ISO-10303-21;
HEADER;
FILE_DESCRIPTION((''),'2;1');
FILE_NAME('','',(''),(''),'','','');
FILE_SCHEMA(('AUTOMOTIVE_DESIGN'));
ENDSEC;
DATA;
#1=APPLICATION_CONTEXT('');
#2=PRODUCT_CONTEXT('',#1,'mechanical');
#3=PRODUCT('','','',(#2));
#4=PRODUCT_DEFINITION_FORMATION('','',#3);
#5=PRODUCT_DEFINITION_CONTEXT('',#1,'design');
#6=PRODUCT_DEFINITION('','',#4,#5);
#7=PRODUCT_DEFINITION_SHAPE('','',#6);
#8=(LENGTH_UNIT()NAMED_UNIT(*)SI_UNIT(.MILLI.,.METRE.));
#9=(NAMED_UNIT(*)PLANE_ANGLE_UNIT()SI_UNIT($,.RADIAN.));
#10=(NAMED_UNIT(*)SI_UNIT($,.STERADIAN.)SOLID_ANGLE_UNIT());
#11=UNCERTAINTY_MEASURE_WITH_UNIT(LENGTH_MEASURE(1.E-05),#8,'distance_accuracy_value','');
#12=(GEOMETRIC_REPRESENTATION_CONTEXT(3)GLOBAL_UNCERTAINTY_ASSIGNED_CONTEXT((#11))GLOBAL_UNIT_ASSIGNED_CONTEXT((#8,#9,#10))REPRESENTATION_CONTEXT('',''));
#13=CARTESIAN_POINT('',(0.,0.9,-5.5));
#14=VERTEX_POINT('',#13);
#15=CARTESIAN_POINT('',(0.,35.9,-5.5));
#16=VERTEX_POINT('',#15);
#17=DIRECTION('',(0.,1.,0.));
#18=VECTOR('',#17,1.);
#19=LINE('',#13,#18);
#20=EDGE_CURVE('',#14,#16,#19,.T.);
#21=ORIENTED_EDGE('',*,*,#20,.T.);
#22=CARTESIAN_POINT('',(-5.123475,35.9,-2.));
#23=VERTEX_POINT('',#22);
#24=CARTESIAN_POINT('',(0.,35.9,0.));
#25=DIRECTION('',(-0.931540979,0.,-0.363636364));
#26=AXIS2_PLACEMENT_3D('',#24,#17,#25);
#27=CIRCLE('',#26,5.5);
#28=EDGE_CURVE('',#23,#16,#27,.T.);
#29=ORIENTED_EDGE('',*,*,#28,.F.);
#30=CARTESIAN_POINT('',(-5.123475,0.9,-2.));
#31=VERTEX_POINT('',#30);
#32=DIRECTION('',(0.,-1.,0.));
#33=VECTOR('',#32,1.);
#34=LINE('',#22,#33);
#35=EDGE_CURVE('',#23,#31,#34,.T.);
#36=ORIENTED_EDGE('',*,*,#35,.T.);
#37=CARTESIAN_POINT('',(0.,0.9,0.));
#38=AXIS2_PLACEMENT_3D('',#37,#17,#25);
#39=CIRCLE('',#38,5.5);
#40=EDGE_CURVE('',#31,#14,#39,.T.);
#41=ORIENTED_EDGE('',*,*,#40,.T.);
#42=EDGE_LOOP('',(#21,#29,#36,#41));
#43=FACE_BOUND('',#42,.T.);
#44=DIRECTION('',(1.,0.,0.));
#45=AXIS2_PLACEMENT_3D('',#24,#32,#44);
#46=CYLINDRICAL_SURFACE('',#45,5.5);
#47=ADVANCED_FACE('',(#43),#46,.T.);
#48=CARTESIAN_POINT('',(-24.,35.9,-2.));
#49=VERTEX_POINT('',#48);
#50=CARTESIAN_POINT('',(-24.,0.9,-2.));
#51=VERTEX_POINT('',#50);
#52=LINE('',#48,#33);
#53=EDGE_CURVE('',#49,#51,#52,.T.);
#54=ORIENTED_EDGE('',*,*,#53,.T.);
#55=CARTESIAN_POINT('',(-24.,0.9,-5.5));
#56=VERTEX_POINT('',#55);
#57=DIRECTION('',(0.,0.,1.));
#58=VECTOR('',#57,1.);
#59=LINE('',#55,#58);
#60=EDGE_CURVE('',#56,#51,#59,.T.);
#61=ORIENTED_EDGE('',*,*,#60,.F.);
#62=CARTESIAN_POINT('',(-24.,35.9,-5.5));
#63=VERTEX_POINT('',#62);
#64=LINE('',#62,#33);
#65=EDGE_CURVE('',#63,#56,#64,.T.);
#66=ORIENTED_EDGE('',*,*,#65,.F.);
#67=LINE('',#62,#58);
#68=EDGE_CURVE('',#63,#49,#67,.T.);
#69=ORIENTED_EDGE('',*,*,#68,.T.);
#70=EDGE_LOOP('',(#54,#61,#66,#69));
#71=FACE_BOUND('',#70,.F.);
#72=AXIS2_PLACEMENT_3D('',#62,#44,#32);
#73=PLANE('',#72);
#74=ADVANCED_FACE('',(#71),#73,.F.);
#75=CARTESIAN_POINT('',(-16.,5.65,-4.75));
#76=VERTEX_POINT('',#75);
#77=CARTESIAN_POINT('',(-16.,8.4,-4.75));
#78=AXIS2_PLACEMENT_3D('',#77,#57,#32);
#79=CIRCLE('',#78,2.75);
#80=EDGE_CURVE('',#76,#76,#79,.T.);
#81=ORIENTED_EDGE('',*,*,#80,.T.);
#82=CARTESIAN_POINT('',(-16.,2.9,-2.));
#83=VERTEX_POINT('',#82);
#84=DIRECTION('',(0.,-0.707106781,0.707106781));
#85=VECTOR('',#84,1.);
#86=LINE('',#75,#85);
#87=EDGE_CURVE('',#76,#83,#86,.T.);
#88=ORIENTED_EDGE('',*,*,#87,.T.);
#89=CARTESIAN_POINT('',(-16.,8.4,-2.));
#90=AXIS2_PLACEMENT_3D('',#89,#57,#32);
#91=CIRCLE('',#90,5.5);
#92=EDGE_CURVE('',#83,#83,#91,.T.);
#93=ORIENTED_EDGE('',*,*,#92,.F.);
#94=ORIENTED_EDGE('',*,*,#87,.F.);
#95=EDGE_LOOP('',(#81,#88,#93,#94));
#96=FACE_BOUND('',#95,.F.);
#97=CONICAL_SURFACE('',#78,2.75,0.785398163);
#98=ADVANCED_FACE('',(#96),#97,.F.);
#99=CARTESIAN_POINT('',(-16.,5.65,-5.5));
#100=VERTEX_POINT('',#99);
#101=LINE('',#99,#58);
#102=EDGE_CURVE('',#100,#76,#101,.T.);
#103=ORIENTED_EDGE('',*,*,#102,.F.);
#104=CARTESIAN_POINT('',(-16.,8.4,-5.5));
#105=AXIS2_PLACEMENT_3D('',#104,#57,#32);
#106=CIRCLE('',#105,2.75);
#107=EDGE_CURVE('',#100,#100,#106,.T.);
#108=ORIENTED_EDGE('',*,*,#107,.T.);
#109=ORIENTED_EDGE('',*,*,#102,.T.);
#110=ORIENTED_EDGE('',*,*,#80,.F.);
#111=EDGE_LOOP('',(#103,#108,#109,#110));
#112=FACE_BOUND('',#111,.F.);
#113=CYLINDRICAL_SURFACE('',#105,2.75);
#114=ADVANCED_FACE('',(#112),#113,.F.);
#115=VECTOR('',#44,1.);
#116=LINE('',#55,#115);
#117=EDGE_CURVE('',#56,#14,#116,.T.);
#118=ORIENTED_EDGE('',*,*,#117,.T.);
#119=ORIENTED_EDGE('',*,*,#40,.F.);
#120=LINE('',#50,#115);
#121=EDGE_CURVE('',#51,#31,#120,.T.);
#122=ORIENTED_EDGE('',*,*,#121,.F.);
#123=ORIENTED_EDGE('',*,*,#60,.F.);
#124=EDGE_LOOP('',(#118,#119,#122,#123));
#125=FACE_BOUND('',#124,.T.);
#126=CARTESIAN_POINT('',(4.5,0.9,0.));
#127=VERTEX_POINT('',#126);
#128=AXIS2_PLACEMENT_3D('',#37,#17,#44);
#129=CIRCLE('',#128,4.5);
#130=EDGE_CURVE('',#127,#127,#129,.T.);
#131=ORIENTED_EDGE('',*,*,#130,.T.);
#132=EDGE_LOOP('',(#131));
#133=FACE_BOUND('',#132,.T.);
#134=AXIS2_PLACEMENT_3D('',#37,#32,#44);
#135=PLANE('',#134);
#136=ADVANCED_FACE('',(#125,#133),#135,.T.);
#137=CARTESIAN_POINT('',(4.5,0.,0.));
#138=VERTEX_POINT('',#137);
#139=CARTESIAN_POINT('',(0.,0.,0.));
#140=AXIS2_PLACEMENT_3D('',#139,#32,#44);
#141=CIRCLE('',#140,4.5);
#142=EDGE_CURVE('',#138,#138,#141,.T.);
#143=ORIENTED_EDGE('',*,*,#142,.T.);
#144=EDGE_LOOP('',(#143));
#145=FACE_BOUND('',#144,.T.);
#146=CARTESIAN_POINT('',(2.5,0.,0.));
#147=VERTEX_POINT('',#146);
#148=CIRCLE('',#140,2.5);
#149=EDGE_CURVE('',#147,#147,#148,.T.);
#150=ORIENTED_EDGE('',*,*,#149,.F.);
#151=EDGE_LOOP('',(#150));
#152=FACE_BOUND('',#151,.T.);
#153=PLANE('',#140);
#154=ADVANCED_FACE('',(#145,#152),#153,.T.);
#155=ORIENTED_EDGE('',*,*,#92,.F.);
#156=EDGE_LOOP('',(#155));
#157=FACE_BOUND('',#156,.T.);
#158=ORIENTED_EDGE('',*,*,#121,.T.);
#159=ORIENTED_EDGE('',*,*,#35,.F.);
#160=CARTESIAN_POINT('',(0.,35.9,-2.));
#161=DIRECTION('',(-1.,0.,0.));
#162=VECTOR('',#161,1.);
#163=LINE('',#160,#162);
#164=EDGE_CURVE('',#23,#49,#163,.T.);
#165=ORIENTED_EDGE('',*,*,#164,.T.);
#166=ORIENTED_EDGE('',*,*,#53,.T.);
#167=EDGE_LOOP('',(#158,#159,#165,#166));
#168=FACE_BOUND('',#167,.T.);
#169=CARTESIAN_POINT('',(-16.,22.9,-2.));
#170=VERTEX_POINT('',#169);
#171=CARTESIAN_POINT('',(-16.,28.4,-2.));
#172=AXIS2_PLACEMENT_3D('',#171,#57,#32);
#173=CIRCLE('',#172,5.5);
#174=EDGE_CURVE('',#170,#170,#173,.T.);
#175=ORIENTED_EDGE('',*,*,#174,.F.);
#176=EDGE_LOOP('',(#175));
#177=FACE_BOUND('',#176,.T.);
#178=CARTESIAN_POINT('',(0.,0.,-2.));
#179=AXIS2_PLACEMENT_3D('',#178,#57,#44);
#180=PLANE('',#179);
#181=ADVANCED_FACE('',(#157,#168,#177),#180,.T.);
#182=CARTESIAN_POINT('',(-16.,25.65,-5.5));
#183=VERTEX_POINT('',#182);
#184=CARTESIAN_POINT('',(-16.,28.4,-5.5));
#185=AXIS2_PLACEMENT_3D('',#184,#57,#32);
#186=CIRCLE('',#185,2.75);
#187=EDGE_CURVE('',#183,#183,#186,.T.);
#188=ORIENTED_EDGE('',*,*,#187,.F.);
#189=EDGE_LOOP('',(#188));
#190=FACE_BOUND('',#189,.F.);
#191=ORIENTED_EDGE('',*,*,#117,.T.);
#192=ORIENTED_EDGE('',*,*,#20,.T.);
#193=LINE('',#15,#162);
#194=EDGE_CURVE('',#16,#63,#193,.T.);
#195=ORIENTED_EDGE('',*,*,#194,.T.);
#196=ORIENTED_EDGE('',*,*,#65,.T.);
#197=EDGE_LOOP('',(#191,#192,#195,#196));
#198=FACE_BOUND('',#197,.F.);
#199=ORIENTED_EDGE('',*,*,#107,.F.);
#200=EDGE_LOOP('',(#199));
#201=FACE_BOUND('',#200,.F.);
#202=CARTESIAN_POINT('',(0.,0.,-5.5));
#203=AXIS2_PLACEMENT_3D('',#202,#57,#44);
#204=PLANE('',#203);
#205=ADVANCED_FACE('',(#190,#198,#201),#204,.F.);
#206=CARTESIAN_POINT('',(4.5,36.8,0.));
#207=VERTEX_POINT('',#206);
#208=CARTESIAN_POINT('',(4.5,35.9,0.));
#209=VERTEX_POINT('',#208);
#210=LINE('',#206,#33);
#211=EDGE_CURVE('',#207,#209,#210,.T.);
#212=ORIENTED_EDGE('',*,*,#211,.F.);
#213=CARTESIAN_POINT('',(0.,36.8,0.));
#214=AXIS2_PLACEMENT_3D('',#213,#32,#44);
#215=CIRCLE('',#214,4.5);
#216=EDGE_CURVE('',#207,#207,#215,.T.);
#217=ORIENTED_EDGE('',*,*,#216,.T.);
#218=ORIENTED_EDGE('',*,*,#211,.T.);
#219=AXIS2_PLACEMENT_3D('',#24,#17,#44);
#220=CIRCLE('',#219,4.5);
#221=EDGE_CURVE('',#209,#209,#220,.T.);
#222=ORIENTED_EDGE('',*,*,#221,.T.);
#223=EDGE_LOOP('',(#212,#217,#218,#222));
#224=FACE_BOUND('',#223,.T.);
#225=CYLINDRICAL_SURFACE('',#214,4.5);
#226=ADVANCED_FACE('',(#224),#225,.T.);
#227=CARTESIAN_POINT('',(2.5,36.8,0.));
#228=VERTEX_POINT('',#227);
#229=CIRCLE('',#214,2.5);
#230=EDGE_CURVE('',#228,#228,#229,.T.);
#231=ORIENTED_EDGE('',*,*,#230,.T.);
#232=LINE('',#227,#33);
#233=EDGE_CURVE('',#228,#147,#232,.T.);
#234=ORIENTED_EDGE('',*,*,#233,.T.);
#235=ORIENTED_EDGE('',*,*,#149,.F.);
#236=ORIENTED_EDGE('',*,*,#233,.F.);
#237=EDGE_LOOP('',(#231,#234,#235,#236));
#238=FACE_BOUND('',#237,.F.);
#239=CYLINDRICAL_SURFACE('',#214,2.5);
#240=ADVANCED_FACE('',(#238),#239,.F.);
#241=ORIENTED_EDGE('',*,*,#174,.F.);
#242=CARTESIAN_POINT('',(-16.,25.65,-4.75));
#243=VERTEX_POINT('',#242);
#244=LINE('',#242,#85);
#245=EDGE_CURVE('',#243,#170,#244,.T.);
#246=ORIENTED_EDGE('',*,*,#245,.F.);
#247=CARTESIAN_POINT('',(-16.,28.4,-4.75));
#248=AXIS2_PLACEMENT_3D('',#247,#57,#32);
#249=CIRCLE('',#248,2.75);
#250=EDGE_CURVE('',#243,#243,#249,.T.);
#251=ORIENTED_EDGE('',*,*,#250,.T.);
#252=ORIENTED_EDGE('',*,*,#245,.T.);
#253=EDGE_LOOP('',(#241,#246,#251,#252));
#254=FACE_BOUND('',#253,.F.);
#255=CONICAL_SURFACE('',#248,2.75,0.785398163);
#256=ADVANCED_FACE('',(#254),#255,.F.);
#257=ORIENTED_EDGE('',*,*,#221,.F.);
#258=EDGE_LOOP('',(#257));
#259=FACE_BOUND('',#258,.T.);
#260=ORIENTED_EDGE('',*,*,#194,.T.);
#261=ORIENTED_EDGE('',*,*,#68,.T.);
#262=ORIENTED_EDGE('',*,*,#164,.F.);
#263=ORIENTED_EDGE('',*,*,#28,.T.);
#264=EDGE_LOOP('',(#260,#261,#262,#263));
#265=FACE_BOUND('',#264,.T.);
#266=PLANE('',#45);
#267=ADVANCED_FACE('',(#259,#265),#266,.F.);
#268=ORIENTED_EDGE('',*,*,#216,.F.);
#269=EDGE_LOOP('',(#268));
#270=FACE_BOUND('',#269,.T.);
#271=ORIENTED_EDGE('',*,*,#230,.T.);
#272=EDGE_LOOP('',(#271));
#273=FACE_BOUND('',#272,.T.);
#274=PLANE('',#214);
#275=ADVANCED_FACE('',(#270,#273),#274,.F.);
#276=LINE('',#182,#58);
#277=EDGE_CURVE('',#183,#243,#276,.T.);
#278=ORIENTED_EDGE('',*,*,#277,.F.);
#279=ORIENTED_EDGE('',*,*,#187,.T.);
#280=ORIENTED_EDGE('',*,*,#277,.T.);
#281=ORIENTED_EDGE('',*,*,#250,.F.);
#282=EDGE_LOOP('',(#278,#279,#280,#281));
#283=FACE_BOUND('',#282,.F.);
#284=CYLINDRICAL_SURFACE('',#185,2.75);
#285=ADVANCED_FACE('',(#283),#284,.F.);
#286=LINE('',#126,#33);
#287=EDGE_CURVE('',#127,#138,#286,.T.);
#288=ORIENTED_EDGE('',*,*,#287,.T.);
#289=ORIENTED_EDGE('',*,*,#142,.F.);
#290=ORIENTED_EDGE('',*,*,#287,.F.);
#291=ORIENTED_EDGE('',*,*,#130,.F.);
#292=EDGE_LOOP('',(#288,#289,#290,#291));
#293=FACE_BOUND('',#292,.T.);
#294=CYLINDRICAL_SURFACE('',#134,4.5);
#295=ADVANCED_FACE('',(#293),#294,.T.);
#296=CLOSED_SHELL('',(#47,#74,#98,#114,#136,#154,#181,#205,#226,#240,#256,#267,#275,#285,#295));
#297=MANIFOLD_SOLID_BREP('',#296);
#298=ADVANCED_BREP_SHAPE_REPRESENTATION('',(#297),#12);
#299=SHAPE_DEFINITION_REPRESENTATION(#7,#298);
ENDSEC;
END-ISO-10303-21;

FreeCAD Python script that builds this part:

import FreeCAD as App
import Part
import Sketcher
Q = App.Units.Quantity

doc = App.newDocument("Part")
body = doc.addObject("PartDesign::Body", "Body")

sketch1 = body.newObject("Sketcher::SketchObject", "Sketch")
sketch1.AttachmentSupport = (doc.getObject("XY_Plane"), [""])
sketch1.MapMode = "FlatFace"
sketch1.addGeometry([
    Part.LineSegment(App.Vector(0, 36.8, 0), App.Vector(0, 0, 0)),
    Part.LineSegment(App.Vector(0, 0, 0), App.Vector(4.5, 0, 0)),
    Part.LineSegment(App.Vector(4.5, 0, 0), App.Vector(4.5, 0.9, 0)),
    Part.LineSegment(App.Vector(4.5, 0.9, 0), App.Vector(5.5, 0.9, 0)),
    Part.LineSegment(App.Vector(5.5, 0.9, 0), App.Vector(5.5, 35.9, 0)),
    Part.LineSegment(App.Vector(5.5, 35.9, 0), App.Vector(4.5, 35.9, 0)),
    Part.LineSegment(App.Vector(4.5, 35.9, 0), App.Vector(4.5, 36.8, 0)),
    Part.LineSegment(App.Vector(4.5, 36.8, 0), App.Vector(0, 36.8, 0)),
], False)
sketch1.addConstraint([
    Sketcher.Constraint("Coincident", 0, 2, 1, 1),
    Sketcher.Constraint("Coincident", 1, 2, 2, 1),
    Sketcher.Constraint("Coincident", 2, 2, 3, 1),
    Sketcher.Constraint("Coincident", 3, 2, 4, 1),
    Sketcher.Constraint("Coincident", 4, 2, 5, 1),
    Sketcher.Constraint("Coincident", 5, 2, 6, 1),
    Sketcher.Constraint("Coincident", 6, 2, 7, 1),
    Sketcher.Constraint("Coincident", 7, 2, 0, 1),
    Sketcher.Constraint("Vertical", 0),
    Sketcher.Constraint("Horizontal", 1),
    Sketcher.Constraint("Vertical", 2),
    Sketcher.Constraint("Horizontal", 3),
    Sketcher.Constraint("Vertical", 4),
    Sketcher.Constraint("Horizontal", 5),
    Sketcher.Constraint("Vertical", 6),
    Sketcher.Constraint("Horizontal", 7),
    Sketcher.Constraint("Coincident", 0, 2, -1, 1),
    Sketcher.Constraint("Vertical", 2, 2, 5, 2),
    Sketcher.Constraint("Equal", 2, 6),
    Sketcher.Constraint("DistanceX", 3, 1, 3, 2, 1.0),
    Sketcher.Constraint("DistanceY", 4, 1, 4, 2, 35.0),
    Sketcher.Constraint("DistanceX", 1, 1, 1, 2, 4.5),
    Sketcher.Constraint("DistanceY", 0, 2, 0, 1, 36.8),
])
revolution = body.newObject("PartDesign::Revolution", "Revolution")
revolution.Profile = sketch1
revolution.ReferenceAxis = (sketch1, ["V_Axis"])
revolution.Angle = 360

sketch2 = body.newObject("Sketcher::SketchObject", "Sketch001")
sketch2.AttachmentSupport = (doc.getObject("XY_Plane"), [""])
sketch2.MapMode = "FlatFace"
sketch2.AttachmentOffset = App.Placement(App.Vector(0, 0, -5.5), App.Rotation())
sketch2.addGeometry([
    Part.LineSegment(App.Vector(-24, 35.9, 0), App.Vector(-24, 0.9, 0)),
    Part.LineSegment(App.Vector(-24, 0.9, 0), App.Vector(0, 0.9, 0)),
    Part.LineSegment(App.Vector(0, 0.9, 0), App.Vector(0, 35.9, 0)),
    Part.LineSegment(App.Vector(0, 35.9, 0), App.Vector(-24, 35.9, 0)),
], False)
sketch2.addConstraint([
    Sketcher.Constraint("Coincident", 0, 2, 1, 1),
    Sketcher.Constraint("Coincident", 1, 2, 2, 1),
    Sketcher.Constraint("Coincident", 2, 2, 3, 1),
    Sketcher.Constraint("Coincident", 3, 2, 0, 1),
    Sketcher.Constraint("Vertical", 0),
    Sketcher.Constraint("Horizontal", 1),
    Sketcher.Constraint("Vertical", 2),
    Sketcher.Constraint("Horizontal", 3),
    Sketcher.Constraint("PointOnObject", 1, 2, -2),
    Sketcher.Constraint("DistanceX", 1, 1, 1, 2, 24.0),
    Sketcher.Constraint("DistanceY", 0, 2, 0, 1, 35.0),
    Sketcher.Constraint("DistanceY", -1, 1, 0, 2, 0.9),
])
pad1 = body.newObject("PartDesign::Pad", "Pad")
pad1.Profile = sketch2
pad1.Length = 3.5

sketch3 = body.newObject("Sketcher::SketchObject", "Sketch002")
sketch3.AttachmentSupport = (doc.getObject("YZ_Plane"), [""])
sketch3.MapMode = "FlatFace"
sketch3.AttachmentOffset = App.Placement(App.Vector(0, 0, -16), App.Rotation())
sketch3.addGeometry([
    Part.LineSegment(App.Vector(8.4, -5.5, 0), App.Vector(8.4, -2, 0)),
    Part.LineSegment(App.Vector(8.4, -2, 0), App.Vector(2.9, -2, 0)),
    Part.LineSegment(App.Vector(2.9, -2, 0), App.Vector(5.65, -4.75, 0)),
    Part.LineSegment(App.Vector(5.65, -4.75, 0), App.Vector(5.65, -5.5, 0)),
    Part.LineSegment(App.Vector(5.65, -5.5, 0), App.Vector(8.4, -5.5, 0)),
], False)
sketch3.addGeometry(Part.LineSegment(App.Vector(8.4, -5.5, 0), App.Vector(8.4, -2, 0)), True)
sketch3.addConstraint([
    Sketcher.Constraint("Coincident", 0, 2, 1, 1),
    Sketcher.Constraint("Coincident", 1, 2, 2, 1),
    Sketcher.Constraint("Coincident", 2, 2, 3, 1),
    Sketcher.Constraint("Coincident", 3, 2, 4, 1),
    Sketcher.Constraint("Coincident", 4, 2, 0, 1),
    Sketcher.Constraint("Vertical", 0),
    Sketcher.Constraint("Horizontal", 1),
    Sketcher.Constraint("Vertical", 3),
    Sketcher.Constraint("Horizontal", 4),
    Sketcher.Constraint("Vertical", 5),
    Sketcher.Constraint("Coincident", 5, 1, 4, 2),
    Sketcher.Constraint("Horizontal", 1, 2, 5, 2),
    Sketcher.Constraint("Angle", 2, Q("-45 deg")),
    Sketcher.Constraint("DistanceX", 1, 2, 1, 1, 5.5),
    Sketcher.Constraint("DistanceY", 0, 1, 0, 2, 3.5),
    Sketcher.Constraint("DistanceY", 0, 2, -1, 1, 2.0),
    Sketcher.Constraint("DistanceX", 4, 1, 4, 2, 2.75),
    Sketcher.Constraint("DistanceX", -1, 1, 0, 2, 8.4),
])
groove = body.newObject("PartDesign::Groove", "Groove")
groove.Profile = sketch3
groove.ReferenceAxis = (sketch3, ["Axis0"])
groove.Angle = 360

sketch4 = body.newObject("Sketcher::SketchObject", "Sketch003")
sketch4.AttachmentSupport = (doc.getObject("YZ_Plane"), [""])
sketch4.MapMode = "FlatFace"
sketch4.AttachmentOffset = App.Placement(App.Vector(0, 0, -16), App.Rotation())
sketch4.addGeometry([
    Part.LineSegment(App.Vector(28.4, -5.5, 0), App.Vector(28.4, -2, 0)),
    Part.LineSegment(App.Vector(28.4, -2, 0), App.Vector(22.9, -2, 0)),
    Part.LineSegment(App.Vector(22.9, -2, 0), App.Vector(25.65, -4.75, 0)),
    Part.LineSegment(App.Vector(25.65, -4.75, 0), App.Vector(25.65, -5.5, 0)),
    Part.LineSegment(App.Vector(25.65, -5.5, 0), App.Vector(28.4, -5.5, 0)),
], False)
sketch4.addGeometry(Part.LineSegment(App.Vector(28.4, -5.5, 0), App.Vector(28.4, -2, 0)), True)
sketch4.addConstraint([
    Sketcher.Constraint("Coincident", 0, 2, 1, 1),
    Sketcher.Constraint("Coincident", 1, 2, 2, 1),
    Sketcher.Constraint("Coincident", 2, 2, 3, 1),
    Sketcher.Constraint("Coincident", 3, 2, 4, 1),
    Sketcher.Constraint("Coincident", 4, 2, 0, 1),
    Sketcher.Constraint("Vertical", 0),
    Sketcher.Constraint("Horizontal", 1),
    Sketcher.Constraint("Vertical", 3),
    Sketcher.Constraint("Horizontal", 4),
    Sketcher.Constraint("Vertical", 5),
    Sketcher.Constraint("Coincident", 5, 1, 4, 2),
    Sketcher.Constraint("Horizontal", 1, 2, 5, 2),
    Sketcher.Constraint("Angle", 2, Q("-45 deg")),
    Sketcher.Constraint("DistanceX", 1, 2, 1, 1, 5.5),
    Sketcher.Constraint("DistanceY", 0, 1, 0, 2, 3.5),
    Sketcher.Constraint("DistanceY", 0, 2, -1, 1, 2.0),
    Sketcher.Constraint("DistanceX", 4, 1, 4, 2, 2.75),
    Sketcher.Constraint("DistanceX", -1, 1, 0, 2, 28.4),
])
groove2 = body.newObject("PartDesign::Groove", "Groove001")
groove2.Profile = sketch4
groove2.ReferenceAxis = (sketch4, ["Axis0"])
groove2.Angle = 360

sketch5 = body.newObject("Sketcher::SketchObject", "Sketch004")
sketch5.AttachmentSupport = (doc.getObject("XY_Plane"), [""])
sketch5.MapMode = "FlatFace"
sketch5.addGeometry([
    Part.LineSegment(App.Vector(0, 36.8, 0), App.Vector(0, 0, 0)),
    Part.LineSegment(App.Vector(0, 0, 0), App.Vector(2.5, 0, 0)),
    Part.LineSegment(App.Vector(2.5, 0, 0), App.Vector(2.5, 36.8, 0)),
    Part.LineSegment(App.Vector(2.5, 36.8, 0), App.Vector(0, 36.8, 0)),
], False)
sketch5.addConstraint([
    Sketcher.Constraint("Coincident", 0, 2, 1, 1),
    Sketcher.Constraint("Coincident", 1, 2, 2, 1),
    Sketcher.Constraint("Coincident", 2, 2, 3, 1),
    Sketcher.Constraint("Coincident", 3, 2, 0, 1),
    Sketcher.Constraint("Vertical", 0),
    Sketcher.Constraint("Horizontal", 1),
    Sketcher.Constraint("Vertical", 2),
    Sketcher.Constraint("Horizontal", 3),
    Sketcher.Constraint("Coincident", 0, 2, -1, 1),
    Sketcher.Constraint("DistanceX", 1, 1, 1, 2, 2.5),
    Sketcher.Constraint("DistanceY", 0, 2, 0, 1, 36.8),
])
groove3 = body.newObject("PartDesign::Groove", "Groove002")
groove3.Profile = sketch5
groove3.ReferenceAxis = (sketch5, ["V_Axis"])
groove3.Angle = 360

doc.recompute()
